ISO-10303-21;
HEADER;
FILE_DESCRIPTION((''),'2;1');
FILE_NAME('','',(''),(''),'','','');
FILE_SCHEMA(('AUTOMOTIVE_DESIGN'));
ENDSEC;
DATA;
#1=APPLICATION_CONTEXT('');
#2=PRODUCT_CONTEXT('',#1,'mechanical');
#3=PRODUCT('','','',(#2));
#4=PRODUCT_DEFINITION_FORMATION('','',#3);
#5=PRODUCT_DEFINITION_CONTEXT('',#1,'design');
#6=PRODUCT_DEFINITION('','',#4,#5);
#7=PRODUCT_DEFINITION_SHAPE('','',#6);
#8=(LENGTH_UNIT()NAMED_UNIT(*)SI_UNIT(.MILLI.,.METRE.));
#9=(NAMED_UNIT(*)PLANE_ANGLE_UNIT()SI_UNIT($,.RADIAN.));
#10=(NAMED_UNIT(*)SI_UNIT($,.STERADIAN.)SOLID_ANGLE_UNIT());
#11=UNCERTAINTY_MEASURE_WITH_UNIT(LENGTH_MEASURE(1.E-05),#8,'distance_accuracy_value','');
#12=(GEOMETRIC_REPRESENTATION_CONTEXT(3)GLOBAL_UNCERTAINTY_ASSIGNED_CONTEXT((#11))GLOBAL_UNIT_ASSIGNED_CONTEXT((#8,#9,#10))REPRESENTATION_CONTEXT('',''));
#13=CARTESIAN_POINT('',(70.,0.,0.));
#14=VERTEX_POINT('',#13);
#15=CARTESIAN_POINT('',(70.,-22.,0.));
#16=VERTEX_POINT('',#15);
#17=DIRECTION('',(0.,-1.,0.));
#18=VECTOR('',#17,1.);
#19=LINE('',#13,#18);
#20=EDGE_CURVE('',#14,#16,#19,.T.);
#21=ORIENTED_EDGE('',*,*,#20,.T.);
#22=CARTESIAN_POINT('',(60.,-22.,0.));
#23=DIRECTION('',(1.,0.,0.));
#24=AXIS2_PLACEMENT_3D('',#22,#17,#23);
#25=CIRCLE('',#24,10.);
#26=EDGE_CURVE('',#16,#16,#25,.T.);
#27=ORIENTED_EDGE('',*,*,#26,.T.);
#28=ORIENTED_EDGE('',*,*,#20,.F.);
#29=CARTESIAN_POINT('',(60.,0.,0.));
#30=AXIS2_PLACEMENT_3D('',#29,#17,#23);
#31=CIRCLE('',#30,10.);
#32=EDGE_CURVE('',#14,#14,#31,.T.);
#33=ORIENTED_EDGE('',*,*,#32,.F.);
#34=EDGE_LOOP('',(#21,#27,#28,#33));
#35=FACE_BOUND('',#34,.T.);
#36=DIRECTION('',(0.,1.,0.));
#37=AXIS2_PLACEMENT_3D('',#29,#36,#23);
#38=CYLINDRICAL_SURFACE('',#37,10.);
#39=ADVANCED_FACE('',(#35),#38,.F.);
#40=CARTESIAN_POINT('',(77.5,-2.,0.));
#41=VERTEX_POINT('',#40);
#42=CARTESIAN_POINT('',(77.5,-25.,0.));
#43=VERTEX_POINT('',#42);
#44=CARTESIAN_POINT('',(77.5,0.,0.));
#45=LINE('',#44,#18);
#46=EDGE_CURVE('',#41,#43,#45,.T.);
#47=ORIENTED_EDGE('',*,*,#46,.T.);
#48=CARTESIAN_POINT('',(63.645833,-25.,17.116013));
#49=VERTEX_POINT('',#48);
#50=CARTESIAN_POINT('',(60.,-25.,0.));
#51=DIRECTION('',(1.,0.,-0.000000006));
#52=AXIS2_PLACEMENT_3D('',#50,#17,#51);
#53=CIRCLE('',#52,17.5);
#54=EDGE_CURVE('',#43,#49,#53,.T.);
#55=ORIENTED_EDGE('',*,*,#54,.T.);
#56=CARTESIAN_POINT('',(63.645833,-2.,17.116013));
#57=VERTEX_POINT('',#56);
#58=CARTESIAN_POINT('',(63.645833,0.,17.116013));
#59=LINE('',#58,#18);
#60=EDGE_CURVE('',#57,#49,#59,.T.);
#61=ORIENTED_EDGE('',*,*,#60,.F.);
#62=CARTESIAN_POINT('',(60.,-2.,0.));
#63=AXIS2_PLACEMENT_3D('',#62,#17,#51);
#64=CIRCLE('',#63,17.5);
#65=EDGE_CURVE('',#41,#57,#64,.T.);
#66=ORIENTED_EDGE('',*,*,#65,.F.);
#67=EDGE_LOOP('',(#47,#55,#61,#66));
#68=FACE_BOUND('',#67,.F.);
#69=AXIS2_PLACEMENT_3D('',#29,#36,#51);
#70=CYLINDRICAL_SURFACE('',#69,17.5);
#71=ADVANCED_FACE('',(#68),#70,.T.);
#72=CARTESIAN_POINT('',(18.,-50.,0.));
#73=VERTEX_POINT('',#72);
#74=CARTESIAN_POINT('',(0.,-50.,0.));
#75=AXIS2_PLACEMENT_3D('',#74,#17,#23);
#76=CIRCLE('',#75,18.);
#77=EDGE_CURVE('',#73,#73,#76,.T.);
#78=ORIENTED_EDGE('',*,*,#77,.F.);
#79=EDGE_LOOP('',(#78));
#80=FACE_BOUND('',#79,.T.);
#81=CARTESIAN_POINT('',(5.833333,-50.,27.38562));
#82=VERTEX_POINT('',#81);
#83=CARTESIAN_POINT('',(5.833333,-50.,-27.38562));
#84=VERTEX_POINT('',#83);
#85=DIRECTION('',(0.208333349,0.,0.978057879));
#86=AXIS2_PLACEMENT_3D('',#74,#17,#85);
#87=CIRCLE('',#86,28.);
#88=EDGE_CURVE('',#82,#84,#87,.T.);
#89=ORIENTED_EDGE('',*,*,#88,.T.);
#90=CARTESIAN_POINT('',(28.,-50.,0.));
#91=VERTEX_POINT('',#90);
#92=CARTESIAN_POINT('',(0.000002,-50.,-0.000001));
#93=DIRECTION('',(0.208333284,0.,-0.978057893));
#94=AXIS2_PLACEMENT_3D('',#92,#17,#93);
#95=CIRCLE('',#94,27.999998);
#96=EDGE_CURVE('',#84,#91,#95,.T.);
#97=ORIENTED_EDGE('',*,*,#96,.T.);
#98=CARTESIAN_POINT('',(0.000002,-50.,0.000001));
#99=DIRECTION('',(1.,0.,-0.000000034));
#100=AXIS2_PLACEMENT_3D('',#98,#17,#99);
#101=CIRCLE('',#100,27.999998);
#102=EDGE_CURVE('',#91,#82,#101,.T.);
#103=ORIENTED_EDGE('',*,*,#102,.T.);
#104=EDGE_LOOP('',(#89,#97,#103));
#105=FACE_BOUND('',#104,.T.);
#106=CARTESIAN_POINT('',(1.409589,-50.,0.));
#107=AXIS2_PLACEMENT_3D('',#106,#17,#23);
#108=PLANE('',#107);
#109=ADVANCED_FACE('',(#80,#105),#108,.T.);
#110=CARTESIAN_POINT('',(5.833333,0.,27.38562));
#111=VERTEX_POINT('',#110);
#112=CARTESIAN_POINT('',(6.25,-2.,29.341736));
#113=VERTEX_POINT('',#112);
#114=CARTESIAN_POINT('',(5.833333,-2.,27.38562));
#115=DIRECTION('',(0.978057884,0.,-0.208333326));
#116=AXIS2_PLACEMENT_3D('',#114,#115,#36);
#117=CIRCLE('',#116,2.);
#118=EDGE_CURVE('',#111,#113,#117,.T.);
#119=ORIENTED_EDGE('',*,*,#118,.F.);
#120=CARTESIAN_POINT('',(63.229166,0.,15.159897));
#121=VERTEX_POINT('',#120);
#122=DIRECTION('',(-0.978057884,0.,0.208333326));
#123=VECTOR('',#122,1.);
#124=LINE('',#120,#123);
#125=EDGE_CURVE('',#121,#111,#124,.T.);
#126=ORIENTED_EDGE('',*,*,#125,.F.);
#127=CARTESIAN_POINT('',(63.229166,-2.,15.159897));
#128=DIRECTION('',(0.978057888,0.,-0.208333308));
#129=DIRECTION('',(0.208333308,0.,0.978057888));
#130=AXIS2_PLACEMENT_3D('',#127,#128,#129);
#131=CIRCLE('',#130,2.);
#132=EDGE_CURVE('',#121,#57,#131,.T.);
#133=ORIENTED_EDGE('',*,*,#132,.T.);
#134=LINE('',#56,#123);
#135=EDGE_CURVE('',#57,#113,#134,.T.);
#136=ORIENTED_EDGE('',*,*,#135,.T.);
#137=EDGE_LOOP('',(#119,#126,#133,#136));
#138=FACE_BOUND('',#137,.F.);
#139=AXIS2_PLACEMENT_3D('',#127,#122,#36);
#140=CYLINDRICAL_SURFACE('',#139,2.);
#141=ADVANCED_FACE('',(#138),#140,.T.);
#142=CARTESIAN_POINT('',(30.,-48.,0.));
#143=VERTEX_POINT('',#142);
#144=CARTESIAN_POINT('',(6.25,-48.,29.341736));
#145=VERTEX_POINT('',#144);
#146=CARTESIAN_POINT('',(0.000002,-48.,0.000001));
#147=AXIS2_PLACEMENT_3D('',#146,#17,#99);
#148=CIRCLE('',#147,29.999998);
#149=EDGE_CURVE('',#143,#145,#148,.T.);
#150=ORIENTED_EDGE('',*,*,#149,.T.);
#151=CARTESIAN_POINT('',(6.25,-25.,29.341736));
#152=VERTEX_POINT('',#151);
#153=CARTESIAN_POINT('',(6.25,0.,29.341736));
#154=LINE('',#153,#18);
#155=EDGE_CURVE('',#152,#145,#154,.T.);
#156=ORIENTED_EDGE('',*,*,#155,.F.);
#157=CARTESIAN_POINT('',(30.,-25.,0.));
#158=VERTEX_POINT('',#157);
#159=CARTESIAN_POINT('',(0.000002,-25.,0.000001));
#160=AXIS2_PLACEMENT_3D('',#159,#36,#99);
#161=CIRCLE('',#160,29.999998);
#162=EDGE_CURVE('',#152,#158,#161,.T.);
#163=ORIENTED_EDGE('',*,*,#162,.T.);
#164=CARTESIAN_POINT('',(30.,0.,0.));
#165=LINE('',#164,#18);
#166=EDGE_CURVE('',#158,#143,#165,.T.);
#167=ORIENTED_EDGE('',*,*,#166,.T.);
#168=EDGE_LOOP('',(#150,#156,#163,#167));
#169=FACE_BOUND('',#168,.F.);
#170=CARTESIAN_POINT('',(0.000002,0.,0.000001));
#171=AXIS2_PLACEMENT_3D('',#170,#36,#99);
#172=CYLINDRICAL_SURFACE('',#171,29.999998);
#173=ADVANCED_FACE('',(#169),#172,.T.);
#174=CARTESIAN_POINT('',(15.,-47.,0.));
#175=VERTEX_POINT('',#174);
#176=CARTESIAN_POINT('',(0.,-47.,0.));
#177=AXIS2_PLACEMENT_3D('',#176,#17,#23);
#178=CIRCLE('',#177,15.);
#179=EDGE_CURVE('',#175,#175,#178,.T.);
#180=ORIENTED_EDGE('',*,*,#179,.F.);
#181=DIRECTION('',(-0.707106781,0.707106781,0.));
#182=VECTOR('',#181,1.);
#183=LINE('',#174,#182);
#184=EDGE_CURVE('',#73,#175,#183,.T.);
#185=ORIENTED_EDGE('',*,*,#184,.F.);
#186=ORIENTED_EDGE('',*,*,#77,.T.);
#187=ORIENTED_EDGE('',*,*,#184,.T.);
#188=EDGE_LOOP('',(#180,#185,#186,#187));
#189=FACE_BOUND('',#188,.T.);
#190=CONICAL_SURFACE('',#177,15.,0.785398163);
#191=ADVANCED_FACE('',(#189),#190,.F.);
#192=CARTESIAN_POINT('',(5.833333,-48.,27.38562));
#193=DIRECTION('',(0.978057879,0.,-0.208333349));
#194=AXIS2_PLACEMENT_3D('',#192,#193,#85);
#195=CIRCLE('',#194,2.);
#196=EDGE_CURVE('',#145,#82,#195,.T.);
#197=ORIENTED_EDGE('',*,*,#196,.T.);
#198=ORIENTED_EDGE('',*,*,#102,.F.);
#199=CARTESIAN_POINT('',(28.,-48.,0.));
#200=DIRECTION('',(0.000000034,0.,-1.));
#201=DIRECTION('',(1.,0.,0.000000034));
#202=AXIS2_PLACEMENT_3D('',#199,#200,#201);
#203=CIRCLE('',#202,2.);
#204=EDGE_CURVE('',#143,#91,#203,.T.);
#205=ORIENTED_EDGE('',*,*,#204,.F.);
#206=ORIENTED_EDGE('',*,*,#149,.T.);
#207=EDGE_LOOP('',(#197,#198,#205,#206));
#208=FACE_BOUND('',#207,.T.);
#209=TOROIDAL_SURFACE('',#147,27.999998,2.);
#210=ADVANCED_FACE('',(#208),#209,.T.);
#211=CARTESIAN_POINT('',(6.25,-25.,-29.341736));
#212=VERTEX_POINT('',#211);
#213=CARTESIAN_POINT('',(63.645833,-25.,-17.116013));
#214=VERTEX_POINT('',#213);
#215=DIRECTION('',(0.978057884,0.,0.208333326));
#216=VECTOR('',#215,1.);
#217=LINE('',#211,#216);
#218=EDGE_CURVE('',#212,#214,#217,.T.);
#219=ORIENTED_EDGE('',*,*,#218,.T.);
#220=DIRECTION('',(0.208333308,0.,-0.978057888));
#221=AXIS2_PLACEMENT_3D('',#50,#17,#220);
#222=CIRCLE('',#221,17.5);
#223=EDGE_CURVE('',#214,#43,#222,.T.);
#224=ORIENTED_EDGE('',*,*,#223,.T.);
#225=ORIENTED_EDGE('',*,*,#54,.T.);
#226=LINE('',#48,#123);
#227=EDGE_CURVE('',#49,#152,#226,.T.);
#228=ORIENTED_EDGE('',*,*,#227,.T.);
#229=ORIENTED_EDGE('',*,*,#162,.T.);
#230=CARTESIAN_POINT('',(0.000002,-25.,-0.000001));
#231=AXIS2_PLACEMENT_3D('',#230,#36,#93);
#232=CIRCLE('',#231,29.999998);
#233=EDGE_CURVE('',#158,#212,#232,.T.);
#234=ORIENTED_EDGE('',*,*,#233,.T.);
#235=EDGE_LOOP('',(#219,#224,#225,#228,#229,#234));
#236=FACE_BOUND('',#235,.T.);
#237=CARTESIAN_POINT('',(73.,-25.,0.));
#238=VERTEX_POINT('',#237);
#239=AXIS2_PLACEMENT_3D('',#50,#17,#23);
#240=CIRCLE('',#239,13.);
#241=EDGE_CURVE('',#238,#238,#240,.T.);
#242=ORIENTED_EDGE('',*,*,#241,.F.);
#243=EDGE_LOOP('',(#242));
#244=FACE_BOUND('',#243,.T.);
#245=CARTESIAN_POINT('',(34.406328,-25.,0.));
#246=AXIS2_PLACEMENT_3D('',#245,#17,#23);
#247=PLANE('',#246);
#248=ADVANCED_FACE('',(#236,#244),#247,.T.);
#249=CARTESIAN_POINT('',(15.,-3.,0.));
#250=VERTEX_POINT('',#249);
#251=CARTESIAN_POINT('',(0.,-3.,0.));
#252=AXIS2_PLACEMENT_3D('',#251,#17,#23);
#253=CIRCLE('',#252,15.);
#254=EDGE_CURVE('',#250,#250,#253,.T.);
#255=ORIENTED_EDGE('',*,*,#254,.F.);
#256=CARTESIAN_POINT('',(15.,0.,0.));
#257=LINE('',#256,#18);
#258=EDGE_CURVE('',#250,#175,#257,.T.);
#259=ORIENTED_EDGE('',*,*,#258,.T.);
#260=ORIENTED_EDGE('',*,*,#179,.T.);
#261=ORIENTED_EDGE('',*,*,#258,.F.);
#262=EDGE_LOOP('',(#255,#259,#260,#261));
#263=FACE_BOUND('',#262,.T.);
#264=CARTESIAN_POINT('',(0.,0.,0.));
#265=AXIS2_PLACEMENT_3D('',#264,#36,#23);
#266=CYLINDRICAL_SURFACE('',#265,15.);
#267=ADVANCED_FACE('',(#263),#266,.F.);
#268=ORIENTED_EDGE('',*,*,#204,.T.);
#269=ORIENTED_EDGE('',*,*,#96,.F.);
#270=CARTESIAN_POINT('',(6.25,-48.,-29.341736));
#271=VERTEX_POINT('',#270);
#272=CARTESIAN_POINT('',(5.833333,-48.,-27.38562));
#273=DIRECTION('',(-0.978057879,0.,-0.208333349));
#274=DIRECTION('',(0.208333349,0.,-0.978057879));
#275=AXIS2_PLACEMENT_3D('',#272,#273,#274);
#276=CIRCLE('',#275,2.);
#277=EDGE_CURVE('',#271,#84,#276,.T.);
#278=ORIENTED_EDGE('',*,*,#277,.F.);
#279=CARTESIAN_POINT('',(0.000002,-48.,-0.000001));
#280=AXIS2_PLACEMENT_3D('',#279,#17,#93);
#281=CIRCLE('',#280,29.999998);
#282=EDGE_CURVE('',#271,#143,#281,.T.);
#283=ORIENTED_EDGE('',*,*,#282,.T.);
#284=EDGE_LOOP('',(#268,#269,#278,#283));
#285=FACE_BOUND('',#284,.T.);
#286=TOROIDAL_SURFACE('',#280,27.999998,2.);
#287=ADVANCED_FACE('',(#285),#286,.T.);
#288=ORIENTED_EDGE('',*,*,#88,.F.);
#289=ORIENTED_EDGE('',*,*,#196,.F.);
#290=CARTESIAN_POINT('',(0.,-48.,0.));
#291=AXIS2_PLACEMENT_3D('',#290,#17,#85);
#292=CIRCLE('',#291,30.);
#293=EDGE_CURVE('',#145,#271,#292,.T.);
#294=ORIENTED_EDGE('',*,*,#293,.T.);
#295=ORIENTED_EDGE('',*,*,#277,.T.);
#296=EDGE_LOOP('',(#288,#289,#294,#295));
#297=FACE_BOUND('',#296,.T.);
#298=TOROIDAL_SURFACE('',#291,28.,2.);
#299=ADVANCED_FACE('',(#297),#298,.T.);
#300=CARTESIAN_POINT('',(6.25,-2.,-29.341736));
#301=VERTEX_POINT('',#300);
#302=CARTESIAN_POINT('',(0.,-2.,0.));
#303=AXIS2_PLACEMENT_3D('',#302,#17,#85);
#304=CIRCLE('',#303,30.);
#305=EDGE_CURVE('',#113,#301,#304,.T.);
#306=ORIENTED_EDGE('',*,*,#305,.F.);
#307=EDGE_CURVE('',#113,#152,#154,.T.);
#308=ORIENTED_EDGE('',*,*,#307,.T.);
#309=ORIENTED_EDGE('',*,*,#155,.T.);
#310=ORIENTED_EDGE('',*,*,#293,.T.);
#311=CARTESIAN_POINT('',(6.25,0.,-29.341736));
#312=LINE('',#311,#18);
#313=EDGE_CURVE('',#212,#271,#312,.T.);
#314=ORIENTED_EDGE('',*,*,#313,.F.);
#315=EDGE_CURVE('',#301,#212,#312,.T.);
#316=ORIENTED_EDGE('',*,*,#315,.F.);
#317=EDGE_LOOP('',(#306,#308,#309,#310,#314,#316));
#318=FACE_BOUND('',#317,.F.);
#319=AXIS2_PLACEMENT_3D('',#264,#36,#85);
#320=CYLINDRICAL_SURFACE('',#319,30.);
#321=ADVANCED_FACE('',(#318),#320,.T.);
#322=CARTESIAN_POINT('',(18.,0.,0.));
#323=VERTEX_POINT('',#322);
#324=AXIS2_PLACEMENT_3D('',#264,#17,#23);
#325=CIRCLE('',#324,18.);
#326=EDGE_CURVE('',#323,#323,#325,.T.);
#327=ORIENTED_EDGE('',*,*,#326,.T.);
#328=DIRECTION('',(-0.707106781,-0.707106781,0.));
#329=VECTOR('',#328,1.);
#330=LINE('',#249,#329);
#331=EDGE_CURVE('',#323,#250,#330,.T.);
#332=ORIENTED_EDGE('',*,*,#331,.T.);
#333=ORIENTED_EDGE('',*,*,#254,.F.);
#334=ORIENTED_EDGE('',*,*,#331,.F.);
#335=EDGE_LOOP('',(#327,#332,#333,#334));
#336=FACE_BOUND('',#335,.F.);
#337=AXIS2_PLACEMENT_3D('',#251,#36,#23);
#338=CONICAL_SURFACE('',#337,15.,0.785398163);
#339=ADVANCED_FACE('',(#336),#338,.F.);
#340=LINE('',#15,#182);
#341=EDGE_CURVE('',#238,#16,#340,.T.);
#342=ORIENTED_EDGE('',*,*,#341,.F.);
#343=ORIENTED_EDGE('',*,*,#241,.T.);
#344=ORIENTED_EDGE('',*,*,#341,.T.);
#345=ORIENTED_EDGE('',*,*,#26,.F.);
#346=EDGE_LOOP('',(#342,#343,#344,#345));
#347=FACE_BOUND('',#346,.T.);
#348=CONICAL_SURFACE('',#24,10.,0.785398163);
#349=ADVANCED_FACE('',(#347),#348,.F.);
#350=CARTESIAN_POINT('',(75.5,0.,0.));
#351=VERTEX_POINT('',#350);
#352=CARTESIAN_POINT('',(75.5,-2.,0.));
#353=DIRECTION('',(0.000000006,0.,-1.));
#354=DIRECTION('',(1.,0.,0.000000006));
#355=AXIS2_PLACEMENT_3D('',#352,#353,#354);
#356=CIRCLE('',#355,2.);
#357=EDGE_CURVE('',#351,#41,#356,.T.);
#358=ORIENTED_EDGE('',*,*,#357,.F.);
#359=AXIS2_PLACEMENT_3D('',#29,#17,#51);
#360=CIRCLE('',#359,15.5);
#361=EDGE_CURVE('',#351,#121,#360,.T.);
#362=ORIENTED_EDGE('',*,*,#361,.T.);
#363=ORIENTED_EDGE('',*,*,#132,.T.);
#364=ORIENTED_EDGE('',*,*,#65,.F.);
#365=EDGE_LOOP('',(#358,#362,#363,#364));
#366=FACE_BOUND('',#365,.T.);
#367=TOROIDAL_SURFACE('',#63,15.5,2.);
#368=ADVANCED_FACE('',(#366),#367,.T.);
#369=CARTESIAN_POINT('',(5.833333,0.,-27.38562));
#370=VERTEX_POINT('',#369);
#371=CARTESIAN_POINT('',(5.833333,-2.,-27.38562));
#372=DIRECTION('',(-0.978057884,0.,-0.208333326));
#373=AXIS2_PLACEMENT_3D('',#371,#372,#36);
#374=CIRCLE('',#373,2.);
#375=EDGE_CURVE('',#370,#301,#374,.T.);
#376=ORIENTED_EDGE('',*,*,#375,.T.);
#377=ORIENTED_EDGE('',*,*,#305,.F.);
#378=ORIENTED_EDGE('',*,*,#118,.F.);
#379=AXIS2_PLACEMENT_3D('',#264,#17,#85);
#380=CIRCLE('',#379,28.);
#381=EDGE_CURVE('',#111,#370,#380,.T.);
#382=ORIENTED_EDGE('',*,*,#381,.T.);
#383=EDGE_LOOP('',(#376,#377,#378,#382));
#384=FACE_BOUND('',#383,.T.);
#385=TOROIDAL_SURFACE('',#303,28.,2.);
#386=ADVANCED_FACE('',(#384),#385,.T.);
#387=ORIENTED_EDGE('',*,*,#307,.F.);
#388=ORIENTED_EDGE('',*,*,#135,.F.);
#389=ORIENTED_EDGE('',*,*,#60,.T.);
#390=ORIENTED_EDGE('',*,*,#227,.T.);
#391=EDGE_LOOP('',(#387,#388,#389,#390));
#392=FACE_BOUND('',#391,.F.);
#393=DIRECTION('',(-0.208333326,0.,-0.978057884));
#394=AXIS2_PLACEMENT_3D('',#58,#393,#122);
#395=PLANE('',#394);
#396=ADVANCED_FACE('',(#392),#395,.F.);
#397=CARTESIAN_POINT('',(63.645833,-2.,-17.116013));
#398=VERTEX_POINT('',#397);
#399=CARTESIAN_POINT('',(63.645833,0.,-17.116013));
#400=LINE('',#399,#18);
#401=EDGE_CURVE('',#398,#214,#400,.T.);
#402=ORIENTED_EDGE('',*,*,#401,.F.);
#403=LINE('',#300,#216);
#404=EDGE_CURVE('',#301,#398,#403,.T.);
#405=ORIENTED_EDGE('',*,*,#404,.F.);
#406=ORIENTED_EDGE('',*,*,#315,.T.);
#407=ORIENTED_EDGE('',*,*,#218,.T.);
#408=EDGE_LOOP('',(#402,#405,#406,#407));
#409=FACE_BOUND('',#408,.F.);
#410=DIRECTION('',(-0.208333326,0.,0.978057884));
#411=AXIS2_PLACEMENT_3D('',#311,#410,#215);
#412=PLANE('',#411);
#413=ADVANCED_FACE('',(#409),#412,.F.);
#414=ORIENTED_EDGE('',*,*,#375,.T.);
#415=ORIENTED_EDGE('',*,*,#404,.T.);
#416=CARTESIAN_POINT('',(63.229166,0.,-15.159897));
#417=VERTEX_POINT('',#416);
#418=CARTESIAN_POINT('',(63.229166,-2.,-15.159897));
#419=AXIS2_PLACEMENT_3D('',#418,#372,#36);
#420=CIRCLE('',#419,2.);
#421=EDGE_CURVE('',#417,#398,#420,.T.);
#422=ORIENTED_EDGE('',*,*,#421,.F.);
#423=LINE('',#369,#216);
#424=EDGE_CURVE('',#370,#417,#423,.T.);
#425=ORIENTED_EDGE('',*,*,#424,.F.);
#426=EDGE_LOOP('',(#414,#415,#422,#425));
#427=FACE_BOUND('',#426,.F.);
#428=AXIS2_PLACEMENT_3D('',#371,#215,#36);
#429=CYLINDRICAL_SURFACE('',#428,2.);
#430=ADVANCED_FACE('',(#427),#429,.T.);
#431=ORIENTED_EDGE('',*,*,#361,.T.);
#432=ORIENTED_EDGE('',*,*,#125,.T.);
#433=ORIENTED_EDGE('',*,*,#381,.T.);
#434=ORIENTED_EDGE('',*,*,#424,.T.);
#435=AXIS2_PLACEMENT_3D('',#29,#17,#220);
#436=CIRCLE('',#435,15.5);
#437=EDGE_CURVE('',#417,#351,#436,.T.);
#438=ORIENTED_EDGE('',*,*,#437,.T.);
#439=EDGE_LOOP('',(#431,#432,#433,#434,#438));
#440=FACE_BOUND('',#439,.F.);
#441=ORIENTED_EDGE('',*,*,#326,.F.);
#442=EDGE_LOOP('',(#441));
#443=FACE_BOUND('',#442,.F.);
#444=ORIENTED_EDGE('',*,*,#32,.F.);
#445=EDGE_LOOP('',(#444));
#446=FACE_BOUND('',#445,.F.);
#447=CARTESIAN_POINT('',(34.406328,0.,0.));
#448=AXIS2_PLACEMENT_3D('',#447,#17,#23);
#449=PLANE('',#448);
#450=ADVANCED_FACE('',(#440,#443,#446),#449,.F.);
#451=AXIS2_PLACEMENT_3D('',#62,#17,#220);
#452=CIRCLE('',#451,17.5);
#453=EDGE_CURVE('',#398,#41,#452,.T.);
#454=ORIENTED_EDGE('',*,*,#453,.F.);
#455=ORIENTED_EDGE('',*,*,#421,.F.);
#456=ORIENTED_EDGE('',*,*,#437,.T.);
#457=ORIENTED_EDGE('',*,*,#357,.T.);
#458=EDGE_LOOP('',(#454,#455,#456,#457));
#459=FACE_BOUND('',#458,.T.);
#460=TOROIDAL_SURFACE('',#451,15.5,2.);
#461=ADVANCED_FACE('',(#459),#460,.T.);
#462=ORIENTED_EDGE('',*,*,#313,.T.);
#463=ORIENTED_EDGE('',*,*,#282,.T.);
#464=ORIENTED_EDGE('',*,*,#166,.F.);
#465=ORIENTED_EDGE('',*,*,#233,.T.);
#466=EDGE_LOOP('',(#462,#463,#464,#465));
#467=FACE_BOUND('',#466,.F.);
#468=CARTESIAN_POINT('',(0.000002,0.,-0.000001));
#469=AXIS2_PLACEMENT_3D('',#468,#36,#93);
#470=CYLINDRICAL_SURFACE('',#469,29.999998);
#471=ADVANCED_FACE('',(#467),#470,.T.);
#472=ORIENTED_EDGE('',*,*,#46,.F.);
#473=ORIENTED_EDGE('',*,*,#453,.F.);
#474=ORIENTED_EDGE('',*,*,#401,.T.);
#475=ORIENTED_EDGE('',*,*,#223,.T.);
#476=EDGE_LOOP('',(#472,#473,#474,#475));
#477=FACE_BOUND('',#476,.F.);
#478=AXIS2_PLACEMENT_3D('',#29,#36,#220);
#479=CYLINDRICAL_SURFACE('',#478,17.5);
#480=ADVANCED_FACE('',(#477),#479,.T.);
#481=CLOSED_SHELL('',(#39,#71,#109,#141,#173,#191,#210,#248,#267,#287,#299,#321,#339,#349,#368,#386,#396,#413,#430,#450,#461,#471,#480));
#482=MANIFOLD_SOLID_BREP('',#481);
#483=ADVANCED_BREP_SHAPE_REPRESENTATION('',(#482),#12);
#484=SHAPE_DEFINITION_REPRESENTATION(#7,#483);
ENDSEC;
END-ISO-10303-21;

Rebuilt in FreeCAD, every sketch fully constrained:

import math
import FreeCAD as App
import Part
import Sketcher

V = App.Vector


def edges_at(feature, points):
    """Names of the edges that pass closest to the given points."""
    edges = feature.Shape.Edges
    near = lambda p: min(range(len(edges)), key=lambda i: edges[i].distToShape(Part.Vertex(*p))[0])
    return sorted({f"Edge{near(p) + 1}" for p in points})

doc = App.newDocument("Part")
body = doc.addObject("PartDesign::Body", "Body")

sketch1 = doc.addObject("Sketcher::SketchObject", "Sketch")
body.addObject(sketch1)
sketch1.AttachmentSupport = (doc.XZ_Plane, [""])
sketch1.MapMode = "FlatFace"
sketch1.addGeometry([
    Part.LineSegment(V(6, -29, 0), V(64, -17, 0)),
    Part.ArcOfCircle(Part.Circle(V(60, 0, 0), V(0, 0, 1), 17), math.radians(-78), math.radians(0)),
    Part.ArcOfCircle(Part.Circle(V(60, 0, 0), V(0, 0, 1), 17), math.radians(0), math.radians(78)),
    Part.LineSegment(V(64, 17, 0), V(6, 29, 0)),
    Part.ArcOfCircle(Part.Circle(V(0, 0, 0), V(0, 0, 1), 30), math.radians(78), math.radians(282)),
    Part.Circle(V(0, 0, 0), V(0, 0, 1), 15),
    Part.Circle(V(60, 0, 0), V(0, 0, 1), 10),
], False)
sketch1.addConstraint([
    Sketcher.Constraint("Tangent", 0, 2, 1, 1),
    Sketcher.Constraint("Tangent", 1, 2, 2, 1),
    Sketcher.Constraint("Tangent", 2, 2, 3, 1),
    Sketcher.Constraint("Tangent", 3, 2, 4, 1),
    Sketcher.Constraint("Tangent", 4, 2, 0, 1),
    Sketcher.Constraint("Coincident", 4, 3, -1, 1),
    Sketcher.Constraint("Coincident", 5, 3, -1, 1),
    Sketcher.Constraint("Coincident", 6, 3, 1, 3),
    Sketcher.Constraint("Equal", 1, 2),
    Sketcher.Constraint("PointOnObject", 1, 3, -1),
    Sketcher.Constraint("PointOnObject", 1, 2, -1),
    Sketcher.Constraint("Diameter", 5, 30.0),
    Sketcher.Constraint("Diameter", 6, 20.0),
    Sketcher.Constraint("Radius", 4, 30.0),
    Sketcher.Constraint("Radius", 1, 17.5),
    Sketcher.Constraint("DistanceX", -1, 1, 1, 3, 60.0),
])
pad1 = doc.addObject("PartDesign::Pad", "Pad")
body.addObject(pad1)
pad1.Profile = sketch1
pad1.Length = 25

sketch2 = doc.addObject("Sketcher::SketchObject", "Sketch001")
body.addObject(sketch2)
sketch2.AttachmentSupport = (doc.XZ_Plane, [""])
sketch2.MapMode = "FlatFace"
sketch2.addGeometry([
    Part.ArcOfCircle(Part.Circle(V(0, 0, 0), V(0, 0, 1), 30), math.radians(-78), math.radians(0)),
    Part.ArcOfCircle(Part.Circle(V(0, 0, 0), V(0, 0, 1), 30), math.radians(0), math.radians(78)),
    Part.ArcOfCircle(Part.Circle(V(0, 0, 0), V(0, 0, 1), 30), math.radians(78), math.radians(282)),
    Part.Circle(V(0, 0, 0), V(0, 0, 1), 15),
], False)
sketch2.addConstraint([
    Sketcher.Constraint("Tangent", 0, 2, 1, 1),
    Sketcher.Constraint("Tangent", 1, 2, 2, 1),
    Sketcher.Constraint("Tangent", 2, 2, 0, 1),
    Sketcher.Constraint("Coincident", 0, 3, -1, 1),
    Sketcher.Constraint("Coincident", 3, 3, -1, 1),
    Sketcher.Constraint("PointOnObject", 0, 2, -1),
    Sketcher.Constraint("Vertical", 1, 2, 2, 2),
    Sketcher.Constraint("Diameter", 3, 30.0),
    Sketcher.Constraint("Radius", 0, 29.999998),
    Sketcher.Constraint("DistanceX", -1, 1, 1, 2, 6.25),
])
pad2 = doc.addObject("PartDesign::Pad", "Pad001")
body.addObject(pad2)
pad2.Profile = sketch2
pad2.Length = 50
doc.recompute()

fillet = doc.addObject("PartDesign::Fillet", "Fillet")
body.addObject(fillet)
fillet.Base = (pad2, edges_at(pad2, [(34.948, 0, -23.229), (-30, -50, 0)]))
fillet.Radius = 2
doc.recompute()

chamfer = doc.addObject("PartDesign::Chamfer", "Chamfer")
body.addObject(chamfer)
chamfer.Base = (fillet, edges_at(fillet, [
    (50, -25, 0),
    (-15, 0, 0),
    (15, -25, 0),
    (-15, -50, 0),
]))
chamfer.Size = 3

doc.recompute()
